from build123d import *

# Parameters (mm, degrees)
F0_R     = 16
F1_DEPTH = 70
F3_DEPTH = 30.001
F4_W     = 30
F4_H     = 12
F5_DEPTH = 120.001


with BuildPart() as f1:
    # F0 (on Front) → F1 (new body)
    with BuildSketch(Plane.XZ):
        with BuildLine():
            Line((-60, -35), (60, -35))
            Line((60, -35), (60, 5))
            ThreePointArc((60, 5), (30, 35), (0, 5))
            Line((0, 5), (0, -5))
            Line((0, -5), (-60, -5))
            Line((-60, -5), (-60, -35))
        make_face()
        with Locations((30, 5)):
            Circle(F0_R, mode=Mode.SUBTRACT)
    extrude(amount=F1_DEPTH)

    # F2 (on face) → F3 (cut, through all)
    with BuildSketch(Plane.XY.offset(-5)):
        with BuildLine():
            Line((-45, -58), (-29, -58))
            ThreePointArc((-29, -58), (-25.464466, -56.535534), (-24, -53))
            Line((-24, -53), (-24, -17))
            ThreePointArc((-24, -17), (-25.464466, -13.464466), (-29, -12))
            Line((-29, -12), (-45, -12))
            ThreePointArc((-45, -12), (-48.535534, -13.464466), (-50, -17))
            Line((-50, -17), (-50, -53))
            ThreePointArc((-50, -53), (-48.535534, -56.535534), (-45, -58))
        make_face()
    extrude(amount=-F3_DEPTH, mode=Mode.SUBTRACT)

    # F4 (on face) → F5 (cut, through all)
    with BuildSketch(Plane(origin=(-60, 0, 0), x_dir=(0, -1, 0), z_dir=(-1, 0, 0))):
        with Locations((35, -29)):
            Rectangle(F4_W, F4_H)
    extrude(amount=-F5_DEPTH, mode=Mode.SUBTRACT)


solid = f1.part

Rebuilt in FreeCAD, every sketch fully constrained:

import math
import FreeCAD as App
import Part
import Sketcher

V = App.Vector
Q = App.Units.Quantity

doc = App.newDocument("Part")
body = doc.addObject("PartDesign::Body", "Body")

# Sketch on XZ plane
sketch1 = body.newObject("Sketcher::SketchObject", "Sketch")
sketch1.AttachmentSupport = (doc.getObject("XZ_Plane"), [""])
sketch1.MapMode = "FlatFace"
sketch1.addGeometry(Part.LineSegment(V(-60, -35, 0), V(60, -35, 0)), False)
sketch1.addGeometry(Part.LineSegment(V(60, -35, 0), V(60, 5, 0)), False)
sketch1.addGeometry(Part.ArcOfCircle(Part.Circle(V(30, 5, 0), V(0, 0, 1), 30), math.radians(0), math.radians(180)), False)
sketch1.addGeometry(Part.LineSegment(V(0, 5, 0), V(0, -5, 0)), False)
sketch1.addGeometry(Part.LineSegment(V(0, -5, 0), V(-60, -5, 0)), False)
sketch1.addGeometry(Part.LineSegment(V(-60, -5, 0), V(-60, -35, 0)), False)
sketch1.addGeometry(Part.Circle(V(30, 5, 0), V(0, 0, 1), 16), False)
sketch1.addConstraint(Sketcher.Constraint("Coincident", 0, 2, 1, 1))
sketch1.addConstraint(Sketcher.Constraint("Tangent", 1, 2, 2, 1))
sketch1.addConstraint(Sketcher.Constraint("Tangent", 2, 2, 3, 1))
sketch1.addConstraint(Sketcher.Constraint("Coincident", 3, 2, 4, 1))
sketch1.addConstraint(Sketcher.Constraint("Coincident", 4, 2, 5, 1))
sketch1.addConstraint(Sketcher.Constraint("Coincident", 5, 2, 0, 1))
sketch1.addConstraint(Sketcher.Constraint("Horizontal", 0))
sketch1.addConstraint(Sketcher.Constraint("Vertical", 1))
sketch1.addConstraint(Sketcher.Constraint("Vertical", 3))
sketch1.addConstraint(Sketcher.Constraint("Horizontal", 4))
sketch1.addConstraint(Sketcher.Constraint("Vertical", 5))
sketch1.addConstraint(Sketcher.Constraint("Coincident", 6, 3, 2, 3))
sketch1.addConstraint(Sketcher.Constraint("Symmetric", 2, 2, 3, 2, -1, 1))
sketch1.addConstraint(Sketcher.Constraint("Diameter", 6, Q("32 mm")))
sketch1.addConstraint(Sketcher.Constraint("Radius", 2, Q("30 mm")))
sketch1.addConstraint(Sketcher.Constraint("DistanceX", 0, 1, 0, 2, Q("120 mm")))
sketch1.addConstraint(Sketcher.Constraint("DistanceY", 1, 1, 1, 2, Q("40 mm")))
sketch1.addConstraint(Sketcher.Constraint("DistanceY", 3, 2, 3, 1, Q("10 mm")))
pad1 = body.newObject("PartDesign::Pad", "Pad")
pad1.Profile = sketch1
pad1.Length = 70

# Sketch on XY plane
sketch2 = body.newObject("Sketcher::SketchObject", "Sketch001")
sketch2.AttachmentSupport = (doc.getObject("XY_Plane"), [""])
sketch2.MapMode = "FlatFace"
sketch2.AttachmentOffset = App.Placement(V(0, 0, -5), App.Rotation())
sketch2.addGeometry(Part.LineSegment(V(-45, -58, 0), V(-29, -58, 0)), False)
sketch2.addGeometry(Part.ArcOfCircle(Part.Circle(V(-29, -53, 0), V(0, 0, 1), 5), math.radians(-90.000004), math.radians(0.000004)), False)
sketch2.addGeometry(Part.LineSegment(V(-24, -53, 0), V(-24, -17, 0)), False)
sketch2.addGeometry(Part.ArcOfCircle(Part.Circle(V(-29, -17, 0), V(0, 0, 1), 5), math.radians(-0.000004), math.radians(90.000004)), False)
sketch2.addGeometry(Part.LineSegment(V(-29, -12, 0), V(-45, -12, 0)), False)
sketch2.addGeometry(Part.ArcOfCircle(Part.Circle(V(-45, -17, 0), V(0, 0, 1), 5), math.radians(89.999996), math.radians(180.000004)), False)
sketch2.addGeometry(Part.LineSegment(V(-50, -17, 0), V(-50, -53, 0)), False)
sketch2.addGeometry(Part.ArcOfCircle(Part.Circle(V(-45, -53, 0), V(0, 0, 1), 5), math.radians(179.999996), math.radians(270.000004)), False)
sketch2.addConstraint(Sketcher.Constraint("Tangent", 0, 2, 1, 1))
sketch2.addConstraint(Sketcher.Constraint("Tangent", 1, 2, 2, 1))
sketch2.addConstraint(Sketcher.Constraint("Tangent", 2, 2, 3, 1))
sketch2.addConstraint(Sketcher.Constraint("Tangent", 3, 2, 4, 1))
sketch2.addConstraint(Sketcher.Constraint("Tangent", 4, 2, 5, 1))
sketch2.addConstraint(Sketcher.Constraint("Tangent", 5, 2, 6, 1))
sketch2.addConstraint(Sketcher.Constraint("Tangent", 6, 2, 7, 1))
sketch2.addConstraint(Sketcher.Constraint("Tangent", 7, 2, 0, 1))
sketch2.addConstraint(Sketcher.Constraint("Horizontal", 0))
sketch2.addConstraint(Sketcher.Constraint("Vertical", 2))
sketch2.addConstraint(Sketcher.Constraint("Horizontal", 4))
sketch2.addConstraint(Sketcher.Constraint("Vertical", 6))
sketch2.addConstraint(Sketcher.Constraint("Equal", 1, 3))
sketch2.addConstraint(Sketcher.Constraint("Equal", 3, 5))
sketch2.addConstraint(Sketcher.Constraint("Equal", 5, 7))
sketch2.addConstraint(Sketcher.Constraint("Radius", 1, Q("5 mm")))
sketch2.addConstraint(Sketcher.Constraint("DistanceX", 0, 1, 0, 2, Q("16 mm")))
sketch2.addConstraint(Sketcher.Constraint("DistanceY", 2, 1, 2, 2, Q("36 mm")))
sketch2.addConstraint(Sketcher.Constraint("DistanceX", 1, 3, -1, 1, Q("29 mm")))
sketch2.addConstraint(Sketcher.Constraint("DistanceY", 1, 3, -1, 1, Q("53 mm")))
pocket1 = body.newObject("PartDesign::Pocket", "Pocket")
pocket1.Profile = sketch2
pocket1.Type = "ThroughAll"

# Sketch on YZ plane
sketch3 = body.newObject("Sketcher::SketchObject", "Sketch002")
sketch3.AttachmentSupport = (doc.getObject("YZ_Plane"), [""])
sketch3.MapMode = "FlatFace"
sketch3.AttachmentOffset = App.Placement(V(0, 0, -60), App.Rotation())
sketch3.addGeometry(Part.LineSegment(V(-20, -23, 0), V(-20, -35, 0)), False)
sketch3.addGeometry(Part.LineSegment(V(-20, -35, 0), V(-50, -35, 0)), False)
sketch3.addGeometry(Part.LineSegment(V(-50, -35, 0), V(-50, -23, 0)), False)
sketch3.addGeometry(Part.LineSegment(V(-50, -23, 0), V(-20, -23, 0)), False)
sketch3.addConstraint(Sketcher.Constraint("Coincident", 0, 2, 1, 1))
sketch3.addConstraint(Sketcher.Constraint("Coincident", 1, 2, 2, 1))
sketch3.addConstraint(Sketcher.Constraint("Coincident", 2, 2, 3, 1))
sketch3.addConstraint(Sketcher.Constraint("Coincident", 3, 2, 0, 1))
sketch3.addConstraint(Sketcher.Constraint("Vertical", 0))
sketch3.addConstraint(Sketcher.Constraint("Horizontal", 1))
sketch3.addConstraint(Sketcher.Constraint("Vertical", 2))
sketch3.addConstraint(Sketcher.Constraint("Horizontal", 3))
sketch3.addConstraint(Sketcher.Constraint("DistanceX", 1, 2, 1, 1, Q("30 mm")))
sketch3.addConstraint(Sketcher.Constraint("DistanceY", 0, 2, 0, 1, Q("12 mm")))
sketch3.addConstraint(Sketcher.Constraint("DistanceX", 0, 2, -1, 1, Q("20 mm")))
sketch3.addConstraint(Sketcher.Constraint("DistanceY", 0, 2, -1, 1, Q("35 mm")))
pocket2 = body.newObject("PartDesign::Pocket", "Pocket001")
pocket2.Profile = sketch3
pocket2.Type = "ThroughAll"
pocket2.Reversed = True

doc.recompute()
